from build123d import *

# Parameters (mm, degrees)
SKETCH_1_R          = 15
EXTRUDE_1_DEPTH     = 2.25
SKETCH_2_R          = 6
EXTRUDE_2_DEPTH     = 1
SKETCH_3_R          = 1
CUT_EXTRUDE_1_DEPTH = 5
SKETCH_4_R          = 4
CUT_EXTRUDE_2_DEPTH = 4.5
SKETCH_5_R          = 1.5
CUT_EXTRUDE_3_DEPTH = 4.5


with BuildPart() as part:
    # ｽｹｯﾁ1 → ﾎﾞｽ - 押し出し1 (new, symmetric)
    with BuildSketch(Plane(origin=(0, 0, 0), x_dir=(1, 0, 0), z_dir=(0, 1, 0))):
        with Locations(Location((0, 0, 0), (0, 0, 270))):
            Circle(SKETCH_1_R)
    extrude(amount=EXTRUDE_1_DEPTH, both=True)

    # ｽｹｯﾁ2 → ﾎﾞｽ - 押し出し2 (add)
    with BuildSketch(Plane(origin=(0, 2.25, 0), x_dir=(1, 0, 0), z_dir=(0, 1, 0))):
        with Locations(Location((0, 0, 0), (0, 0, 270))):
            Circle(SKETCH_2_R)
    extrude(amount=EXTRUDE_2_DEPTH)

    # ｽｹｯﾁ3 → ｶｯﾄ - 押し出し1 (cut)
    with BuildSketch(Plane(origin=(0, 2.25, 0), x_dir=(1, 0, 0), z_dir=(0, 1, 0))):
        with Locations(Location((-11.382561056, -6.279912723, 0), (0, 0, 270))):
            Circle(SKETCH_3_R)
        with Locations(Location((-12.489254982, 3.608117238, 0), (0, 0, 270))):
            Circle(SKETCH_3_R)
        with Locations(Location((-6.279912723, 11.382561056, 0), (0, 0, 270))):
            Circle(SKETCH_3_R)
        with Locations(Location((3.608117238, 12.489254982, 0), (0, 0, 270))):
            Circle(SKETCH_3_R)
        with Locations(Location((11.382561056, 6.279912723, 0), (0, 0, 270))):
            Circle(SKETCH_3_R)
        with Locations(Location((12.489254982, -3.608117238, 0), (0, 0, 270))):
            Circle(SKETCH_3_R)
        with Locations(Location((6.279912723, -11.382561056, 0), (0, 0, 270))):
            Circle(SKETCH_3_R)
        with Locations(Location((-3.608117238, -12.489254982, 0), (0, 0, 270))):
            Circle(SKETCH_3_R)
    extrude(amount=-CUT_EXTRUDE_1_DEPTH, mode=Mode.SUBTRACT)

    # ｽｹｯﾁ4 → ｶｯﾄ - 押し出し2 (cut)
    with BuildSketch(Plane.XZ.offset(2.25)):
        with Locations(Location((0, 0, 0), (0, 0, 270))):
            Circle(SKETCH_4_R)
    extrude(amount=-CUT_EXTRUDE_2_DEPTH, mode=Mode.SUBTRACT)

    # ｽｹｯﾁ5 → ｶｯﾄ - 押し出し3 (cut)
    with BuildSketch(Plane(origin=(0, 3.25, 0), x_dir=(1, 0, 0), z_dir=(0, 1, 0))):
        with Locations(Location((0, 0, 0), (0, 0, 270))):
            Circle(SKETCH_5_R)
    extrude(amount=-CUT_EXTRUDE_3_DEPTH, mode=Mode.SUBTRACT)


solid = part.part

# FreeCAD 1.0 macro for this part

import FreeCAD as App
import Part
import Sketcher
from FreeCAD import Vector
Q = App.Units.Quantity

doc = App.newDocument("Part")
body = doc.addObject("PartDesign::Body", "Body")

# Sketch on XZ plane
sketch1 = body.newObject("Sketcher::SketchObject", "Sketch")
sketch1.AttachmentSupport = (doc.getObject("XZ_Plane"), [""])
sketch1.MapMode = "FlatFace"
sketch1.addGeometry(Part.Circle(Vector(0, 0, 0), Vector(0, 0, 1), 15), False)
sketch1.addConstraint(Sketcher.Constraint("Coincident", 0, 3, -1, 1))
sketch1.addConstraint(Sketcher.Constraint("Diameter", 0, Q("30 mm")))
pad1 = body.newObject("PartDesign::Pad", "Pad")
pad1.Profile = sketch1
pad1.Length = 4.5
pad1.Midplane = True

# Sketch on XZ plane
sketch2 = body.newObject("Sketcher::SketchObject", "Sketch001")
sketch2.AttachmentSupport = (doc.getObject("XZ_Plane"), [""])
sketch2.MapMode = "FlatFace"
sketch2.AttachmentOffset = App.Placement(Vector(0, 0, -2.25), App.Rotation())
sketch2.addGeometry(Part.Circle(Vector(0, 0, 0), Vector(0, 0, 1), 6), False)
sketch2.addConstraint(Sketcher.Constraint("Coincident", 0, 3, -1, 1))
sketch2.addConstraint(Sketcher.Constraint("Diameter", 0, Q("12 mm")))
pad2 = body.newObject("PartDesign::Pad", "Pad001")
pad2.Profile = sketch2
pad2.Length = 1
pad2.Reversed = True

# Sketch on XZ plane
sketch3 = body.newObject("Sketcher::SketchObject", "Sketch002")
sketch3.AttachmentSupport = (doc.getObject("XZ_Plane"), [""])
sketch3.MapMode = "FlatFace"
sketch3.AttachmentOffset = App.Placement(Vector(0, 0, -2.25), App.Rotation())
sketch3.addGeometry(Part.Circle(Vector(-11.4, 6.3, 0), Vector(0, 0, 1), 1), False)
sketch3.addGeometry(Part.Circle(Vector(-12.5, -3.6, 0), Vector(0, 0, 1), 1), False)
sketch3.addGeometry(Part.Circle(Vector(-6.3, -11.4, 0), Vector(0, 0, 1), 1), False)
sketch3.addGeometry(Part.Circle(Vector(3.6, -12.5, 0), Vector(0, 0, 1), 1), False)
sketch3.addGeometry(Part.Circle(Vector(11.4, -6.3, 0), Vector(0, 0, 1), 1), False)
sketch3.addGeometry(Part.Circle(Vector(12.5, 3.6, 0), Vector(0, 0, 1), 1), False)
sketch3.addGeometry(Part.Circle(Vector(6.3, 11.4, 0), Vector(0, 0, 1), 1), False)
sketch3.addGeometry(Part.Circle(Vector(-3.6, 12.5, 0), Vector(0, 0, 1), 1), False)
sketch3.addConstraint(Sketcher.Constraint("Equal", 0, 1))
sketch3.addConstraint(Sketcher.Constraint("Equal", 1, 2))
sketch3.addConstraint(Sketcher.Constraint("Equal", 2, 3))
sketch3.addConstraint(Sketcher.Constraint("Equal", 3, 4))
sketch3.addConstraint(Sketcher.Constraint("Equal", 4, 5))
sketch3.addConstraint(Sketcher.Constraint("Equal", 5, 6))
sketch3.addConstraint(Sketcher.Constraint("Equal", 6, 7))
sketch3.addConstraint(Sketcher.Constraint("Symmetric", 0, 3, 4, 3, -1, 1))
sketch3.addConstraint(Sketcher.Constraint("Symmetric", 1, 3, 5, 3, -1, 1))
sketch3.addConstraint(Sketcher.Constraint("Symmetric", 2, 3, 6, 3, -1, 1))
sketch3.addConstraint(Sketcher.Constraint("Symmetric", 3, 3, 7, 3, -1, 1))
sketch3.addConstraint(Sketcher.Constraint("Diameter", 0, Q("2 mm")))
sketch3.addConstraint(Sketcher.Constraint("DistanceX", 0, 3, -1, 1, Q("11.382561 mm")))
sketch3.addConstraint(Sketcher.Constraint("DistanceY", 2, 3, -1, 1, Q("11.382561 mm")))
sketch3.addConstraint(Sketcher.Constraint("DistanceY", 1, 3, 0, 3, Q("9.88803 mm")))
sketch3.addConstraint(Sketcher.Constraint("DistanceX", 0, 3, 2, 3, Q("5.102648 mm")))
sketch3.addConstraint(Sketcher.Constraint("DistanceX", 2, 3, 3, 3, Q("9.88803 mm")))
sketch3.addConstraint(Sketcher.Constraint("DistanceY", 2, 3, 4, 3, Q("5.102648 mm")))
sketch3.addConstraint(Sketcher.Constraint("DistanceX", 1, 3, 5, 3, Q("24.97851 mm")))
sketch3.addConstraint(Sketcher.Constraint("DistanceY", 3, 3, -1, 1, Q("12.489255 mm")))
pocket1 = body.newObject("PartDesign::Pocket", "Pocket")
pocket1.Profile = sketch3
pocket1.Length = 5
pocket1.Reversed = True

# Sketch on XZ plane
sketch4 = body.newObject("Sketcher::SketchObject", "Sketch003")
sketch4.AttachmentSupport = (doc.getObject("XZ_Plane"), [""])
sketch4.MapMode = "FlatFace"
sketch4.AttachmentOffset = App.Placement(Vector(0, 0, 2.25), App.Rotation())
sketch4.addGeometry(Part.Circle(Vector(0, 0, 0), Vector(0, 0, 1), 4), False)
sketch4.addConstraint(Sketcher.Constraint("Coincident", 0, 3, -1, 1))
sketch4.addConstraint(Sketcher.Constraint("Diameter", 0, Q("8 mm")))
pocket2 = body.newObject("PartDesign::Pocket", "Pocket001")
pocket2.Profile = sketch4
pocket2.Length = 4.5

# Sketch on XZ plane
sketch5 = body.newObject("Sketcher::SketchObject", "Sketch004")
sketch5.AttachmentSupport = (doc.getObject("XZ_Plane"), [""])
sketch5.MapMode = "FlatFace"
sketch5.AttachmentOffset = App.Placement(Vector(0, 0, -3.25), App.Rotation())
sketch5.addGeometry(Part.Circle(Vector(0, 0, 0), Vector(0, 0, 1), 1.5), False)
sketch5.addConstraint(Sketcher.Constraint("Coincident", 0, 3, -1, 1))
sketch5.addConstraint(Sketcher.Constraint("Diameter", 0, Q("3 mm")))
pocket3 = body.newObject("PartDesign::Pocket", "Pocket002")
pocket3.Profile = sketch5
pocket3.Length = 4.5
pocket3.Reversed = True

doc.recompute()
